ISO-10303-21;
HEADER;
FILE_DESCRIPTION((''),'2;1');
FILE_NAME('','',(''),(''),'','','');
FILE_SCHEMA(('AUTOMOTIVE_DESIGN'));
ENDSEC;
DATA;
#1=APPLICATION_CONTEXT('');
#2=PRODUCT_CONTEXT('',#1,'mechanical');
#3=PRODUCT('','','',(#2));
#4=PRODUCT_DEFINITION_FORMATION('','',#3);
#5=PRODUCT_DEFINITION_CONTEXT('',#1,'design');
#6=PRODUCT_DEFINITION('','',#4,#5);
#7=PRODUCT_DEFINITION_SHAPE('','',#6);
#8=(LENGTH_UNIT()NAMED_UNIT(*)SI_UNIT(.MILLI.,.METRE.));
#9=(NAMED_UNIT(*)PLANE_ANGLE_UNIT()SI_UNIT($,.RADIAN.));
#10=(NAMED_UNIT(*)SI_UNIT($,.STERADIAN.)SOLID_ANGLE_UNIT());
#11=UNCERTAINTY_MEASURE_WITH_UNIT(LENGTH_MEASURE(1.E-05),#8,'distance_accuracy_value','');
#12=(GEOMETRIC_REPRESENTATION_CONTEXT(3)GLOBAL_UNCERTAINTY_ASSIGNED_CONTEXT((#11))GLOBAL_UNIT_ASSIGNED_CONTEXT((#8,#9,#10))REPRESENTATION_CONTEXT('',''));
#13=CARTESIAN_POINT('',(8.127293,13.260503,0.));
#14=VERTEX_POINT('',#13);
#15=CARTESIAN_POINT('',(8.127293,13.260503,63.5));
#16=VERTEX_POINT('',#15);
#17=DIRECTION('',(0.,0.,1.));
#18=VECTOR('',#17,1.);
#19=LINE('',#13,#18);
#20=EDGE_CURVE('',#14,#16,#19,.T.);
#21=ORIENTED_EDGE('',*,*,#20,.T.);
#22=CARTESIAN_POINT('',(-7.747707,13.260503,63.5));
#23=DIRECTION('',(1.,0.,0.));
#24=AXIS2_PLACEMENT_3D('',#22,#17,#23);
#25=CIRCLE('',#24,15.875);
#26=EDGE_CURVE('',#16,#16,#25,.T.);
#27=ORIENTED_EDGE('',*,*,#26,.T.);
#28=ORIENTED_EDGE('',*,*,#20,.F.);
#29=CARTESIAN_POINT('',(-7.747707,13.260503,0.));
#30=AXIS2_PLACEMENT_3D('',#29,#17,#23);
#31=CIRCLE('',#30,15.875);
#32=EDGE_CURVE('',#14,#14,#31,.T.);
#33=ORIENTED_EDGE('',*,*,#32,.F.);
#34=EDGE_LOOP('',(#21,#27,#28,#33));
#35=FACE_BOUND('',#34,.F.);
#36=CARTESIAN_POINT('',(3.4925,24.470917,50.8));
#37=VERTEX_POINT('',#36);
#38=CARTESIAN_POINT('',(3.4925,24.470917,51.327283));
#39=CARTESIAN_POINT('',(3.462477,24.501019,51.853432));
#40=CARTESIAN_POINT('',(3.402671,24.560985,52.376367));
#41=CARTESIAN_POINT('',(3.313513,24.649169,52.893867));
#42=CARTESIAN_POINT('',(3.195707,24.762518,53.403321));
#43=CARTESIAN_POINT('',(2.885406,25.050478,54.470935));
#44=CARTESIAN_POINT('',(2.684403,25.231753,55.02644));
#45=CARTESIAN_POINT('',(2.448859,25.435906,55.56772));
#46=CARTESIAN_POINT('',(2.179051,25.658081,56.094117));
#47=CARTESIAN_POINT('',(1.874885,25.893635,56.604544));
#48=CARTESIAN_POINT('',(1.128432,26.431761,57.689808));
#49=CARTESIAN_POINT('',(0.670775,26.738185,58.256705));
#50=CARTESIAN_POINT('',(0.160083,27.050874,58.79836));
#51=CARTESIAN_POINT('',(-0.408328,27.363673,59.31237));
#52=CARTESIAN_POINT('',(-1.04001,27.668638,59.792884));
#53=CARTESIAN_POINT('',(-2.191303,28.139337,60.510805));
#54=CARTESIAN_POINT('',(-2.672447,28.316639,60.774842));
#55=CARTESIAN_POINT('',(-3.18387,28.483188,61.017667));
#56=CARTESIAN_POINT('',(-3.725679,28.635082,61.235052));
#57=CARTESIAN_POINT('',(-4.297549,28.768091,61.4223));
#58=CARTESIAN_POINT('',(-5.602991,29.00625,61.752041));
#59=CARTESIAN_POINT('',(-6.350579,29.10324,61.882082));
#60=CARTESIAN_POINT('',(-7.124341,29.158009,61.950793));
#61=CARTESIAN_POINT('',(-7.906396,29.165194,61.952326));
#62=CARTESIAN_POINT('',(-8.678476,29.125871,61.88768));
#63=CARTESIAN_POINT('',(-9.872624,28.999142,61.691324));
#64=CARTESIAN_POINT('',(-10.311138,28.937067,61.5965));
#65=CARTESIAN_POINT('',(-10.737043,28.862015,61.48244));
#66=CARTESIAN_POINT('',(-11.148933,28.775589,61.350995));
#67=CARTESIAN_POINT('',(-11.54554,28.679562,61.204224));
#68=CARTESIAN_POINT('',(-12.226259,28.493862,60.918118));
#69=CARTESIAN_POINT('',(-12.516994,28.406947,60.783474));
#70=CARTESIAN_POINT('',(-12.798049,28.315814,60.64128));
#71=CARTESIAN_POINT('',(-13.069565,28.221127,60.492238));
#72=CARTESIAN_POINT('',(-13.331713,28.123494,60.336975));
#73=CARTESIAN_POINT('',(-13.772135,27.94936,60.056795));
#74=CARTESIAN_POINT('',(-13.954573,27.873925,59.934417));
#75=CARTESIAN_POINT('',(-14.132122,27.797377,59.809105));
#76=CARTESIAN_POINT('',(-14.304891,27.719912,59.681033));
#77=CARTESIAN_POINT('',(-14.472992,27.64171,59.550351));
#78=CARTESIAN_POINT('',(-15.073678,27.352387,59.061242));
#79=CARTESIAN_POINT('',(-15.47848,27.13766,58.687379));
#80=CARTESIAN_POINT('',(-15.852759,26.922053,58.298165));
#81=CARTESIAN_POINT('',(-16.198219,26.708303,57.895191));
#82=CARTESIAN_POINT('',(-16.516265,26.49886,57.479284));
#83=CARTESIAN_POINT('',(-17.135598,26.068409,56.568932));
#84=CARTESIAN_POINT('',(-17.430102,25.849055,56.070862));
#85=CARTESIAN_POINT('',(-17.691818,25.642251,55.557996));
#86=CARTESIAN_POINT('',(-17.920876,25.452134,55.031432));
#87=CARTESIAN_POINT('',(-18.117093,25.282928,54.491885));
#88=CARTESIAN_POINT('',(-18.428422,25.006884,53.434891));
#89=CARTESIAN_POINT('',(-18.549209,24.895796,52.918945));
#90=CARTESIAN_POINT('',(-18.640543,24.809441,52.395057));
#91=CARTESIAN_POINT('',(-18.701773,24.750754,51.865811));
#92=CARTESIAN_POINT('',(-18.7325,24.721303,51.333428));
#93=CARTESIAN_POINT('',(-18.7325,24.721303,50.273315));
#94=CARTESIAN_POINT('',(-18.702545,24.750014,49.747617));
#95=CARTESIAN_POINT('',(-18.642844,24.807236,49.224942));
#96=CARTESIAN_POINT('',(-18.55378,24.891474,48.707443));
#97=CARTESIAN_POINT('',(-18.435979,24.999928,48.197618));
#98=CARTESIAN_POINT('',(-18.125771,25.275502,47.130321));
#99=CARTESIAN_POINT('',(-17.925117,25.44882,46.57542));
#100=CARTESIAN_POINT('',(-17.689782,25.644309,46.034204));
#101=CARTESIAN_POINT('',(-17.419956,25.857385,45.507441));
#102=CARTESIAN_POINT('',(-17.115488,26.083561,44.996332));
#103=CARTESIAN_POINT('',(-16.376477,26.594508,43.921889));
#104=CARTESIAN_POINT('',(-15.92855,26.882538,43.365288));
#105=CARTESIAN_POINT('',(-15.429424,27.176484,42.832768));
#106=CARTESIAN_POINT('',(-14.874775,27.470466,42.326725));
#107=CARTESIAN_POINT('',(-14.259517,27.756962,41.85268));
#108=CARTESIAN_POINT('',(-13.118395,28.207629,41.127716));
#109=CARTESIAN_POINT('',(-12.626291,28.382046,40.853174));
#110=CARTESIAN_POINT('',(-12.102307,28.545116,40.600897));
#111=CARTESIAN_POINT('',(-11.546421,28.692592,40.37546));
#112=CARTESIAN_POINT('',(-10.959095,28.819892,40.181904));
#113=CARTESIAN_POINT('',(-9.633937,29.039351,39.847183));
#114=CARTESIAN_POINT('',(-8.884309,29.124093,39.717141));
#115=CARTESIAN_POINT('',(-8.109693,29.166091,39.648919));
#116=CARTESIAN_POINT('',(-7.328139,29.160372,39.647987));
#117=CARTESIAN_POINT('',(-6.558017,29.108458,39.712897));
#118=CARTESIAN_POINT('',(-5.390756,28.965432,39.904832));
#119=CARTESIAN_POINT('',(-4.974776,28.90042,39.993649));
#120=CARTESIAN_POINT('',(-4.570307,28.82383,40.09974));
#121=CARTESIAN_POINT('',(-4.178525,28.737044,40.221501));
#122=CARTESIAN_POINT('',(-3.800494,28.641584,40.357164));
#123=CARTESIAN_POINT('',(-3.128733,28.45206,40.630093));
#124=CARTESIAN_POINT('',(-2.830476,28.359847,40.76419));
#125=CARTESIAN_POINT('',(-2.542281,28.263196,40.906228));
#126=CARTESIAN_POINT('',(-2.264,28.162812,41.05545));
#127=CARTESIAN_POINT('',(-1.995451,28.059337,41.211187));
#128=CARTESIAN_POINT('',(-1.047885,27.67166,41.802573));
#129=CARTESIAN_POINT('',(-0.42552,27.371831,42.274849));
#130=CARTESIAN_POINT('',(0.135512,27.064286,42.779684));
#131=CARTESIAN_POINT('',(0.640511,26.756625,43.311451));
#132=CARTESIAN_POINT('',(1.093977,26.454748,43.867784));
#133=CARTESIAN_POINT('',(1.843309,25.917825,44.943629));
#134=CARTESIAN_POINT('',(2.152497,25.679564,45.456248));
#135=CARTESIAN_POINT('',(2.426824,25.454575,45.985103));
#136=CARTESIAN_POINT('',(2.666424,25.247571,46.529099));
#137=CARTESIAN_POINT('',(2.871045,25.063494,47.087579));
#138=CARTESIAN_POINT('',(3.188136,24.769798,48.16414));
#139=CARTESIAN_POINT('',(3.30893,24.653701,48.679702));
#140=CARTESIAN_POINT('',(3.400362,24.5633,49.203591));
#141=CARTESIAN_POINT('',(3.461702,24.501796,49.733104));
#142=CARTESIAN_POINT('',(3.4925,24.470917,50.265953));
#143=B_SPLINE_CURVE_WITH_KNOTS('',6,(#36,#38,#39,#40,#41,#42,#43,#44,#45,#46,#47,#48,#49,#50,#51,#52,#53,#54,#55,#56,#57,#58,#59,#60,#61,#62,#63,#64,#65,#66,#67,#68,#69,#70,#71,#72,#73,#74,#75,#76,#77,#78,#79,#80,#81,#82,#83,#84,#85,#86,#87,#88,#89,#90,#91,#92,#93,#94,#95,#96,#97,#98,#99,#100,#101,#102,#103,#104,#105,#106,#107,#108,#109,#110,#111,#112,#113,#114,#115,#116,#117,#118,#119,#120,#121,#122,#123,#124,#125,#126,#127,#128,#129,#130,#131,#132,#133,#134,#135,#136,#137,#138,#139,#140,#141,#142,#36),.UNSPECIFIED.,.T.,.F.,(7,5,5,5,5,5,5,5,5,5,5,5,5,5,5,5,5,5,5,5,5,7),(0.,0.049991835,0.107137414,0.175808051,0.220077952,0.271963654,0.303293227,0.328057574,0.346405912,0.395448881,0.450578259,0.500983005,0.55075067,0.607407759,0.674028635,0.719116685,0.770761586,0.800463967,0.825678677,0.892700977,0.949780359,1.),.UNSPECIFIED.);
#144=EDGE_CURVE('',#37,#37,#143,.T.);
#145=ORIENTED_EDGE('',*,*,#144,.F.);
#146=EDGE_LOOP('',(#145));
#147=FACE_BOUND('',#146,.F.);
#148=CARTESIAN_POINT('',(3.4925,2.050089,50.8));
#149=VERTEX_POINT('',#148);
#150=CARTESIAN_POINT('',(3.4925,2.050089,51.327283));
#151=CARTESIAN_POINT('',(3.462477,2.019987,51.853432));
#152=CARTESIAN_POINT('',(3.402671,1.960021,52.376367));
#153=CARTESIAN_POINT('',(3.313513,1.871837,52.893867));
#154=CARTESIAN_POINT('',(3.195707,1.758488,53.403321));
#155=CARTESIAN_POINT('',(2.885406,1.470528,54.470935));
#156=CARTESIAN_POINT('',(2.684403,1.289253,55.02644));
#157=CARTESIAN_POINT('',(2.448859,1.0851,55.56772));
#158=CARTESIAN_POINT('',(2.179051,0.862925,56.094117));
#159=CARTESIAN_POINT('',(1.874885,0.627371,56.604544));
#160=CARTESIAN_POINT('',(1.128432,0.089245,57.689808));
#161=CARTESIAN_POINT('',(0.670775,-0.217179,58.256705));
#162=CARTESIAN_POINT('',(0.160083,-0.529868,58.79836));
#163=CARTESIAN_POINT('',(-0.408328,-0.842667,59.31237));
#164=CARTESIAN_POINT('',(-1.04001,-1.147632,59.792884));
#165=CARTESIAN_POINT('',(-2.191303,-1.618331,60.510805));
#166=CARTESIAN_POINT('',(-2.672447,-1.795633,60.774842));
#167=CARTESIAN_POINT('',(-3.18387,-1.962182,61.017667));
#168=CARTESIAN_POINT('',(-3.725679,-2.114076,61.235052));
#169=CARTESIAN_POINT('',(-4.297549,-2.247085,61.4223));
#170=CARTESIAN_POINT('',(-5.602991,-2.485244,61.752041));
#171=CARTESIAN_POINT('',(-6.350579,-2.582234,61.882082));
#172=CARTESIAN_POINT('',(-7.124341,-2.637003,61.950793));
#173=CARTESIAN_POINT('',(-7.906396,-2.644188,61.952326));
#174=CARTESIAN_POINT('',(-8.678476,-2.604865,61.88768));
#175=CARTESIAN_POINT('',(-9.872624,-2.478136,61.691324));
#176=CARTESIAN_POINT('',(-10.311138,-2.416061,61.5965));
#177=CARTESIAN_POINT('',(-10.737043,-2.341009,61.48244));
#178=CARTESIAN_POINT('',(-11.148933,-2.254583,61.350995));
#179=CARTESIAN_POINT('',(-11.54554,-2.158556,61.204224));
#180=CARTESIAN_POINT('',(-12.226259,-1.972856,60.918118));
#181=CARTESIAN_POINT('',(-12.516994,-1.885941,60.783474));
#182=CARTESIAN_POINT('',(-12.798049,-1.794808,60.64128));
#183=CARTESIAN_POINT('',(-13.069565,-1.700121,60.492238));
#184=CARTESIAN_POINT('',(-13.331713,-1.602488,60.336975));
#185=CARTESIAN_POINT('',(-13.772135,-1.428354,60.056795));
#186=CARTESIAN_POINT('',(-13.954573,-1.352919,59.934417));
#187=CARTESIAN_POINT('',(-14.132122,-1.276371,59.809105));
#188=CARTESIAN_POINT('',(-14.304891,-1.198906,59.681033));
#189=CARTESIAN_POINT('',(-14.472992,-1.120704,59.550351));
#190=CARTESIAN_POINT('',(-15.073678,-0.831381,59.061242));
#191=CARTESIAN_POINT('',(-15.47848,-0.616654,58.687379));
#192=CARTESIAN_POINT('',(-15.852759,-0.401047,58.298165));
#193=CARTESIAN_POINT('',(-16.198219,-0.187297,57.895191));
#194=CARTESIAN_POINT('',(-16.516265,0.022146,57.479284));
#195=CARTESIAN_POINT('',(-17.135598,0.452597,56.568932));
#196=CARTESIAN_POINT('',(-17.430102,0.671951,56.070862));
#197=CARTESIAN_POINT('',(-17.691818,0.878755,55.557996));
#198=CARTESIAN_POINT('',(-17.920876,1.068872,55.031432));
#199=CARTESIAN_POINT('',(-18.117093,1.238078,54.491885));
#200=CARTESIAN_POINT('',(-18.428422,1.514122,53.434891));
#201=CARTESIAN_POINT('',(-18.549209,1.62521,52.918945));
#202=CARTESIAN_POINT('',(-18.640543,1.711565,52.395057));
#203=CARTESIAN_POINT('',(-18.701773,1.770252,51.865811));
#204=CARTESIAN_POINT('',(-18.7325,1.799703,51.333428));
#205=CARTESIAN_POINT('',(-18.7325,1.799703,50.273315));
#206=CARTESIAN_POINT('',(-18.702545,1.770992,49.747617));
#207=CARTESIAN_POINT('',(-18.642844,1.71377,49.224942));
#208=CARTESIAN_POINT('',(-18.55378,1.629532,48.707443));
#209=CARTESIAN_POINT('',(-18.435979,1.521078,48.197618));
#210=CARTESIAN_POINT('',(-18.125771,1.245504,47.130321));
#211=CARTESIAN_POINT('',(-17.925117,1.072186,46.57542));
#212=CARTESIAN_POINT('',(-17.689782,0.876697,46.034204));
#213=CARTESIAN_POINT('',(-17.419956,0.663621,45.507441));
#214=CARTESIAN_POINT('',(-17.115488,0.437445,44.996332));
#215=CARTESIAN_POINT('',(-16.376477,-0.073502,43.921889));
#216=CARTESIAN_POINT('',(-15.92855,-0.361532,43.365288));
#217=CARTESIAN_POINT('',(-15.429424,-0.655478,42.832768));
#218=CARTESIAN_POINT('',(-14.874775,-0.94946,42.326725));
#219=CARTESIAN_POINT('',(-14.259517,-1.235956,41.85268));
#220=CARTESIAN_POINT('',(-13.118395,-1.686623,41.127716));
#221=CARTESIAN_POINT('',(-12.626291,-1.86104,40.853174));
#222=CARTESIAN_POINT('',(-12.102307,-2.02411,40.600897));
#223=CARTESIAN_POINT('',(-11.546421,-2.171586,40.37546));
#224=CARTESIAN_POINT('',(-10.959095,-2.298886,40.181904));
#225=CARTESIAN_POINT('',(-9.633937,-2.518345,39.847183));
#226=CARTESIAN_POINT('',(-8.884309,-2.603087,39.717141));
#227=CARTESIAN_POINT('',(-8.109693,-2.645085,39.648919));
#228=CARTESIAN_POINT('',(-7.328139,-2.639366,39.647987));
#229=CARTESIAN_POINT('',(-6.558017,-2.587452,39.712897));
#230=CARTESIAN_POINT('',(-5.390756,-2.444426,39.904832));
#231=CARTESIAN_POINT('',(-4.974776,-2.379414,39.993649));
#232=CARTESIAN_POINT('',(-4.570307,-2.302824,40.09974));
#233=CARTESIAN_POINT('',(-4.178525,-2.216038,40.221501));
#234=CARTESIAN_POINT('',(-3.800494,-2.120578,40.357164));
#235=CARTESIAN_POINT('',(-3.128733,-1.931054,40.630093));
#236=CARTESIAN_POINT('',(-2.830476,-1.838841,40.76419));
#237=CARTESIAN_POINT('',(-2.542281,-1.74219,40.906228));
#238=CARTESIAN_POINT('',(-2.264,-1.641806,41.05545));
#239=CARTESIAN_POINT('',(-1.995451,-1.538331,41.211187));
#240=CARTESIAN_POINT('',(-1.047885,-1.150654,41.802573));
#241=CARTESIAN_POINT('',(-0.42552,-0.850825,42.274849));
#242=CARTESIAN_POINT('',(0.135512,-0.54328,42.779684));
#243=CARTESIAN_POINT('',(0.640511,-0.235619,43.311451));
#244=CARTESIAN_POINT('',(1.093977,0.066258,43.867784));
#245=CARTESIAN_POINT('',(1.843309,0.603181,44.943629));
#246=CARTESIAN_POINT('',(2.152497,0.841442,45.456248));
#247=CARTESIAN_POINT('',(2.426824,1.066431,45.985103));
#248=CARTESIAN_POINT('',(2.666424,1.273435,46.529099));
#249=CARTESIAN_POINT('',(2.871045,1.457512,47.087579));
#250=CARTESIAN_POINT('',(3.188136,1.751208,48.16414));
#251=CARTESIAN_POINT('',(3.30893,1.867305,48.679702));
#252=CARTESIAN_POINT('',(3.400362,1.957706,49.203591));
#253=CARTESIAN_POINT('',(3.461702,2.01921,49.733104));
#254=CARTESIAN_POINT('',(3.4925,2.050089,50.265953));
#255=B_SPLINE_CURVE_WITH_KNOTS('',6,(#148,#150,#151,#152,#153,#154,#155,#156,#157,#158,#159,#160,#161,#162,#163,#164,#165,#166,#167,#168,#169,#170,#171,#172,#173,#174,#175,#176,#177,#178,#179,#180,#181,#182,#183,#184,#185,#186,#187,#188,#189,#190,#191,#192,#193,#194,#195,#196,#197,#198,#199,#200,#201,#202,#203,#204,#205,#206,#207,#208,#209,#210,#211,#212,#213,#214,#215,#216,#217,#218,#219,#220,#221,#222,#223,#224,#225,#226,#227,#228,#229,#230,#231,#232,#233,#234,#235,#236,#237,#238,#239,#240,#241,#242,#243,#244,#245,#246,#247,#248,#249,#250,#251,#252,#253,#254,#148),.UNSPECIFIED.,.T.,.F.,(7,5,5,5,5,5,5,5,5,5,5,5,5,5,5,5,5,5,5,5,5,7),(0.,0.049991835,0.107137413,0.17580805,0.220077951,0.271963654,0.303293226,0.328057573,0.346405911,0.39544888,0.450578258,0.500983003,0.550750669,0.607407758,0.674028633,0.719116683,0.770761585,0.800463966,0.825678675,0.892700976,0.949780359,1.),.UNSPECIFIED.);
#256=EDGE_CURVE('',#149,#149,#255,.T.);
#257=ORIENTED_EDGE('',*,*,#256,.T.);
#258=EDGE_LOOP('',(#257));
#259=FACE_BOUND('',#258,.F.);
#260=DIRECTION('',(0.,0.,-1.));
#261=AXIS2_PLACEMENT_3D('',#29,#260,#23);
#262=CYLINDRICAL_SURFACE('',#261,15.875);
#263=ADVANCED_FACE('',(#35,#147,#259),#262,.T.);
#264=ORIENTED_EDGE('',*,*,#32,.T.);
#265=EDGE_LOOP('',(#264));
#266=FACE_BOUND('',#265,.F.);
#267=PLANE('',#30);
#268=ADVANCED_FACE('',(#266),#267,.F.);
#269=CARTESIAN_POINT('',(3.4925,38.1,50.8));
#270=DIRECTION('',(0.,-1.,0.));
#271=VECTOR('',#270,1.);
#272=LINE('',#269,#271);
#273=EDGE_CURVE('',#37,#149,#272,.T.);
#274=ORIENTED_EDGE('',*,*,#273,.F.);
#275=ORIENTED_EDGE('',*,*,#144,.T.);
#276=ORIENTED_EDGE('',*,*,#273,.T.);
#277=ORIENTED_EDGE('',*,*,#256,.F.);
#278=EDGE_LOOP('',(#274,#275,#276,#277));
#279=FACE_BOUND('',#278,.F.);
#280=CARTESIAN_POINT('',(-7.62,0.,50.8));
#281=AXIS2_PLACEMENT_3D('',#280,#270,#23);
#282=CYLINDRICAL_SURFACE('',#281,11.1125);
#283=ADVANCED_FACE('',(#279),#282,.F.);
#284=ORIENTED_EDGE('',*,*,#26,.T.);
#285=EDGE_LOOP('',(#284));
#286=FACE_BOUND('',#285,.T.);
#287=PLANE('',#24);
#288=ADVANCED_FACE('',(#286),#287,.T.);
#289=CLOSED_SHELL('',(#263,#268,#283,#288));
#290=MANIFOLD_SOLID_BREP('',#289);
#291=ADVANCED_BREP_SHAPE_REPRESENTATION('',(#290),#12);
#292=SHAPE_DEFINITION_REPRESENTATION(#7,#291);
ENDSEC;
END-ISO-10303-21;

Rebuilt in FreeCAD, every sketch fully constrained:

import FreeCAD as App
import Part
import Sketcher

V = App.Vector
Q = App.Units.Quantity

doc = App.newDocument("Part")
params = doc.addObject("Spreadsheet::Sheet", "Params")
for row, (alias, value) in enumerate([
    ("sketch1_diameter", "1.25 in"),
    ("pad1_length", "2.5 in"),
    ("sketch2_diameter", "0.875 in"),
    ("pocket1_length", "3 in"),
], start=1):
    params.set(f"A{row}", alias)
    params.set(f"B{row}", "=" + value)
    params.setAlias(f"B{row}", alias)

body = doc.addObject("PartDesign::Body", "Body")

sketch1 = body.newObject("Sketcher::SketchObject", "Sketch")
sketch1.AttachmentSupport = (doc.getObject("XY_Plane"), [""])
sketch1.MapMode = "FlatFace"
sketch1.addGeometry(Part.Circle(V(-7.747707, 13.260503, 0), V(0, 0, 1), 15.875), False)
sketch1.addConstraint([
    Sketcher.Constraint("Diameter", 0, Q("1.25 in")),
    Sketcher.Constraint("DistanceX", 0, 3, -1, 1, 7.747707),
    Sketcher.Constraint("DistanceY", -1, 1, 0, 3, 13.260503),
])
sketch1.setExpression("Constraints[0]", "Params.sketch1_diameter")
pad1 = body.newObject("PartDesign::Pad", "Pad")
pad1.Profile = sketch1
pad1.setExpression("Length", "Params.pad1_length")

sketch2 = body.newObject("Sketcher::SketchObject", "Sketch001")
sketch2.AttachmentSupport = (doc.getObject("XZ_Plane"), [""])
sketch2.MapMode = "FlatFace"
sketch2.addGeometry(Part.Circle(V(-7.62, 50.8, 0), V(0, 0, 1), 11.1125), False)
sketch2.addConstraint([
    Sketcher.Constraint("Diameter", 0, Q("0.875 in")),
    Sketcher.Constraint("DistanceY", -1, 1, 0, 3, Q("2 in")),
    Sketcher.Constraint("DistanceX", 0, 3, -1, 1, Q("0.3 in")),
])
sketch2.setExpression("Constraints[0]", "Params.sketch2_diameter")
pocket1 = body.newObject("PartDesign::Pocket", "Pocket")
pocket1.Profile = sketch2
pocket1.setExpression("Length", "Params.pocket1_length")
pocket1.Midplane = True

doc.recompute()
